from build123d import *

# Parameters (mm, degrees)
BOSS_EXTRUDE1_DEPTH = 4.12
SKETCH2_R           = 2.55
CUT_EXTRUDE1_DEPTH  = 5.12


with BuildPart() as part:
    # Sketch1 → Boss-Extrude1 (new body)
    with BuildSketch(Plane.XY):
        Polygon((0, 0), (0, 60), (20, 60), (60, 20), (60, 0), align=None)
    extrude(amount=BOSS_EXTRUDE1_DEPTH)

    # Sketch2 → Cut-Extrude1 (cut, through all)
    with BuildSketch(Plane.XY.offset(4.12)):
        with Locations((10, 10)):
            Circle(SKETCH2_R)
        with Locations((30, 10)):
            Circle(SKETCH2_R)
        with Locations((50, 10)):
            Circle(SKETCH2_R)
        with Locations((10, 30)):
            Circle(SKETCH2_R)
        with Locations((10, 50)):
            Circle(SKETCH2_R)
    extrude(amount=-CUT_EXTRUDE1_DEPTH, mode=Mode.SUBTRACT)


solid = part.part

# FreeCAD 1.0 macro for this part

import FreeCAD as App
import Part
import Sketcher


def add_polygon(sketch, points):
    """Adds a closed chain of lines whose ends are joined by coincident constraints."""
    first, n = sketch.GeometryCount, len(points)
    for a, b in zip(points, points[1:] + points[:1]):
        sketch.addGeometry(Part.LineSegment(App.Vector(*a, 0), App.Vector(*b, 0)), False)
    for i in range(n):
        sketch.addConstraint(Sketcher.Constraint("Coincident", first + i, 2, first + (i + 1) % n, 1))

doc = App.newDocument("Part")
params = doc.addObject("Spreadsheet::Sheet", "Params")
for row, (alias, value) in enumerate([
    ("sketch1_width", "60 mm"),
    ("sketch1_width2", "20 mm"),
    ("pad1_length", "4.12 mm"),
    ("sketch2_diameter", "5.1 mm"),
], start=1):
    params.set(f"A{row}", alias)
    params.set(f"B{row}", "=" + value)
    params.setAlias(f"B{row}", alias)

body = doc.addObject("PartDesign::Body", "Body")

# Sketch on XY plane
sketch1 = doc.addObject("Sketcher::SketchObject", "Sketch")
body.addObject(sketch1)
sketch1.AttachmentSupport = (doc.XY_Plane, [""])
sketch1.MapMode = "FlatFace"
add_polygon(sketch1, [(0, 60), (0, 0), (60, 0), (60, 20), (20, 60)])  # lines 0-4
sketch1.addConstraint(Sketcher.Constraint("Vertical", 0))
sketch1.addConstraint(Sketcher.Constraint("Horizontal", 1))
sketch1.addConstraint(Sketcher.Constraint("Vertical", 2))
sketch1.addConstraint(Sketcher.Constraint("Horizontal", 4))
sketch1.addConstraint(Sketcher.Constraint("Coincident", 0, 2, -1, 1))
sketch1.addConstraint(Sketcher.Constraint("Equal", 1, 0))
sketch1.addConstraint(Sketcher.Constraint("Equal", 4, 2))
sketch1.addConstraint(Sketcher.Constraint("DistanceX", 1, 1, 1, 2, 60.0))
sketch1.addConstraint(Sketcher.Constraint("DistanceX", 4, 2, 4, 1, 20.0))
sketch1.setExpression("Constraints[12]", "Params.sketch1_width")
sketch1.setExpression("Constraints[13]", "Params.sketch1_width2")
pad1 = doc.addObject("PartDesign::Pad", "Pad")
body.addObject(pad1)
pad1.Profile = sketch1
pad1.setExpression("Length", "Params.pad1_length")

# Sketch on XY plane
sketch2 = doc.addObject("Sketcher::SketchObject", "Sketch001")
body.addObject(sketch2)
sketch2.AttachmentSupport = (doc.XY_Plane, [""])
sketch2.MapMode = "FlatFace"
sketch2.AttachmentOffset = App.Placement(App.Vector(0, 0, 4.12), App.Rotation())
sketch2.addGeometry(Part.Circle(App.Vector(10, 10, 0), App.Vector(0, 0, 1), 2.5), False)
sketch2.addGeometry(Part.Circle(App.Vector(30, 10, 0), App.Vector(0, 0, 1), 2.5), False)
sketch2.addGeometry(Part.Circle(App.Vector(50, 10, 0), App.Vector(0, 0, 1), 2.5), False)
sketch2.addGeometry(Part.Circle(App.Vector(10, 30, 0), App.Vector(0, 0, 1), 2.5), False)
sketch2.addGeometry(Part.Circle(App.Vector(10, 50, 0), App.Vector(0, 0, 1), 2.5), False)
sketch2.addConstraint(Sketcher.Constraint("Equal", 0, 1))
sketch2.addConstraint(Sketcher.Constraint("Equal", 1, 2))
sketch2.addConstraint(Sketcher.Constraint("Equal", 2, 3))
sketch2.addConstraint(Sketcher.Constraint("Equal", 3, 4))
sketch2.addConstraint(Sketcher.Constraint("Horizontal", 0, 3, 1, 3))
sketch2.addConstraint(Sketcher.Constraint("Horizontal", 1, 3, 2, 3))
sketch2.addConstraint(Sketcher.Constraint("Vertical", 0, 3, 3, 3))
sketch2.addConstraint(Sketcher.Constraint("Vertical", 3, 3, 4, 3))
sketch2.addConstraint(Sketcher.Constraint("Diameter", 0, 5.1))
sketch2.addConstraint(Sketcher.Constraint("DistanceX", -1, 1, 0, 3, 10.0))
sketch2.addConstraint(Sketcher.Constraint("DistanceY", -1, 1, 0, 3, 10.0))
sketch2.addConstraint(Sketcher.Constraint("DistanceX", -1, 1, 1, 3, 30.0))
sketch2.addConstraint(Sketcher.Constraint("DistanceX", -1, 1, 2, 3, 50.0))
sketch2.addConstraint(Sketcher.Constraint("DistanceY", -1, 1, 3, 3, 30.0))
sketch2.addConstraint(Sketcher.Constraint("DistanceY", -1, 1, 4, 3, 50.0))
sketch2.setExpression("Constraints[8]", "Params.sketch2_diameter")
pocket1 = doc.addObject("PartDesign::Pocket", "Pocket")
body.addObject(pocket1)
pocket1.Profile = sketch2
pocket1.Type = "ThroughAll"

doc.recompute()
